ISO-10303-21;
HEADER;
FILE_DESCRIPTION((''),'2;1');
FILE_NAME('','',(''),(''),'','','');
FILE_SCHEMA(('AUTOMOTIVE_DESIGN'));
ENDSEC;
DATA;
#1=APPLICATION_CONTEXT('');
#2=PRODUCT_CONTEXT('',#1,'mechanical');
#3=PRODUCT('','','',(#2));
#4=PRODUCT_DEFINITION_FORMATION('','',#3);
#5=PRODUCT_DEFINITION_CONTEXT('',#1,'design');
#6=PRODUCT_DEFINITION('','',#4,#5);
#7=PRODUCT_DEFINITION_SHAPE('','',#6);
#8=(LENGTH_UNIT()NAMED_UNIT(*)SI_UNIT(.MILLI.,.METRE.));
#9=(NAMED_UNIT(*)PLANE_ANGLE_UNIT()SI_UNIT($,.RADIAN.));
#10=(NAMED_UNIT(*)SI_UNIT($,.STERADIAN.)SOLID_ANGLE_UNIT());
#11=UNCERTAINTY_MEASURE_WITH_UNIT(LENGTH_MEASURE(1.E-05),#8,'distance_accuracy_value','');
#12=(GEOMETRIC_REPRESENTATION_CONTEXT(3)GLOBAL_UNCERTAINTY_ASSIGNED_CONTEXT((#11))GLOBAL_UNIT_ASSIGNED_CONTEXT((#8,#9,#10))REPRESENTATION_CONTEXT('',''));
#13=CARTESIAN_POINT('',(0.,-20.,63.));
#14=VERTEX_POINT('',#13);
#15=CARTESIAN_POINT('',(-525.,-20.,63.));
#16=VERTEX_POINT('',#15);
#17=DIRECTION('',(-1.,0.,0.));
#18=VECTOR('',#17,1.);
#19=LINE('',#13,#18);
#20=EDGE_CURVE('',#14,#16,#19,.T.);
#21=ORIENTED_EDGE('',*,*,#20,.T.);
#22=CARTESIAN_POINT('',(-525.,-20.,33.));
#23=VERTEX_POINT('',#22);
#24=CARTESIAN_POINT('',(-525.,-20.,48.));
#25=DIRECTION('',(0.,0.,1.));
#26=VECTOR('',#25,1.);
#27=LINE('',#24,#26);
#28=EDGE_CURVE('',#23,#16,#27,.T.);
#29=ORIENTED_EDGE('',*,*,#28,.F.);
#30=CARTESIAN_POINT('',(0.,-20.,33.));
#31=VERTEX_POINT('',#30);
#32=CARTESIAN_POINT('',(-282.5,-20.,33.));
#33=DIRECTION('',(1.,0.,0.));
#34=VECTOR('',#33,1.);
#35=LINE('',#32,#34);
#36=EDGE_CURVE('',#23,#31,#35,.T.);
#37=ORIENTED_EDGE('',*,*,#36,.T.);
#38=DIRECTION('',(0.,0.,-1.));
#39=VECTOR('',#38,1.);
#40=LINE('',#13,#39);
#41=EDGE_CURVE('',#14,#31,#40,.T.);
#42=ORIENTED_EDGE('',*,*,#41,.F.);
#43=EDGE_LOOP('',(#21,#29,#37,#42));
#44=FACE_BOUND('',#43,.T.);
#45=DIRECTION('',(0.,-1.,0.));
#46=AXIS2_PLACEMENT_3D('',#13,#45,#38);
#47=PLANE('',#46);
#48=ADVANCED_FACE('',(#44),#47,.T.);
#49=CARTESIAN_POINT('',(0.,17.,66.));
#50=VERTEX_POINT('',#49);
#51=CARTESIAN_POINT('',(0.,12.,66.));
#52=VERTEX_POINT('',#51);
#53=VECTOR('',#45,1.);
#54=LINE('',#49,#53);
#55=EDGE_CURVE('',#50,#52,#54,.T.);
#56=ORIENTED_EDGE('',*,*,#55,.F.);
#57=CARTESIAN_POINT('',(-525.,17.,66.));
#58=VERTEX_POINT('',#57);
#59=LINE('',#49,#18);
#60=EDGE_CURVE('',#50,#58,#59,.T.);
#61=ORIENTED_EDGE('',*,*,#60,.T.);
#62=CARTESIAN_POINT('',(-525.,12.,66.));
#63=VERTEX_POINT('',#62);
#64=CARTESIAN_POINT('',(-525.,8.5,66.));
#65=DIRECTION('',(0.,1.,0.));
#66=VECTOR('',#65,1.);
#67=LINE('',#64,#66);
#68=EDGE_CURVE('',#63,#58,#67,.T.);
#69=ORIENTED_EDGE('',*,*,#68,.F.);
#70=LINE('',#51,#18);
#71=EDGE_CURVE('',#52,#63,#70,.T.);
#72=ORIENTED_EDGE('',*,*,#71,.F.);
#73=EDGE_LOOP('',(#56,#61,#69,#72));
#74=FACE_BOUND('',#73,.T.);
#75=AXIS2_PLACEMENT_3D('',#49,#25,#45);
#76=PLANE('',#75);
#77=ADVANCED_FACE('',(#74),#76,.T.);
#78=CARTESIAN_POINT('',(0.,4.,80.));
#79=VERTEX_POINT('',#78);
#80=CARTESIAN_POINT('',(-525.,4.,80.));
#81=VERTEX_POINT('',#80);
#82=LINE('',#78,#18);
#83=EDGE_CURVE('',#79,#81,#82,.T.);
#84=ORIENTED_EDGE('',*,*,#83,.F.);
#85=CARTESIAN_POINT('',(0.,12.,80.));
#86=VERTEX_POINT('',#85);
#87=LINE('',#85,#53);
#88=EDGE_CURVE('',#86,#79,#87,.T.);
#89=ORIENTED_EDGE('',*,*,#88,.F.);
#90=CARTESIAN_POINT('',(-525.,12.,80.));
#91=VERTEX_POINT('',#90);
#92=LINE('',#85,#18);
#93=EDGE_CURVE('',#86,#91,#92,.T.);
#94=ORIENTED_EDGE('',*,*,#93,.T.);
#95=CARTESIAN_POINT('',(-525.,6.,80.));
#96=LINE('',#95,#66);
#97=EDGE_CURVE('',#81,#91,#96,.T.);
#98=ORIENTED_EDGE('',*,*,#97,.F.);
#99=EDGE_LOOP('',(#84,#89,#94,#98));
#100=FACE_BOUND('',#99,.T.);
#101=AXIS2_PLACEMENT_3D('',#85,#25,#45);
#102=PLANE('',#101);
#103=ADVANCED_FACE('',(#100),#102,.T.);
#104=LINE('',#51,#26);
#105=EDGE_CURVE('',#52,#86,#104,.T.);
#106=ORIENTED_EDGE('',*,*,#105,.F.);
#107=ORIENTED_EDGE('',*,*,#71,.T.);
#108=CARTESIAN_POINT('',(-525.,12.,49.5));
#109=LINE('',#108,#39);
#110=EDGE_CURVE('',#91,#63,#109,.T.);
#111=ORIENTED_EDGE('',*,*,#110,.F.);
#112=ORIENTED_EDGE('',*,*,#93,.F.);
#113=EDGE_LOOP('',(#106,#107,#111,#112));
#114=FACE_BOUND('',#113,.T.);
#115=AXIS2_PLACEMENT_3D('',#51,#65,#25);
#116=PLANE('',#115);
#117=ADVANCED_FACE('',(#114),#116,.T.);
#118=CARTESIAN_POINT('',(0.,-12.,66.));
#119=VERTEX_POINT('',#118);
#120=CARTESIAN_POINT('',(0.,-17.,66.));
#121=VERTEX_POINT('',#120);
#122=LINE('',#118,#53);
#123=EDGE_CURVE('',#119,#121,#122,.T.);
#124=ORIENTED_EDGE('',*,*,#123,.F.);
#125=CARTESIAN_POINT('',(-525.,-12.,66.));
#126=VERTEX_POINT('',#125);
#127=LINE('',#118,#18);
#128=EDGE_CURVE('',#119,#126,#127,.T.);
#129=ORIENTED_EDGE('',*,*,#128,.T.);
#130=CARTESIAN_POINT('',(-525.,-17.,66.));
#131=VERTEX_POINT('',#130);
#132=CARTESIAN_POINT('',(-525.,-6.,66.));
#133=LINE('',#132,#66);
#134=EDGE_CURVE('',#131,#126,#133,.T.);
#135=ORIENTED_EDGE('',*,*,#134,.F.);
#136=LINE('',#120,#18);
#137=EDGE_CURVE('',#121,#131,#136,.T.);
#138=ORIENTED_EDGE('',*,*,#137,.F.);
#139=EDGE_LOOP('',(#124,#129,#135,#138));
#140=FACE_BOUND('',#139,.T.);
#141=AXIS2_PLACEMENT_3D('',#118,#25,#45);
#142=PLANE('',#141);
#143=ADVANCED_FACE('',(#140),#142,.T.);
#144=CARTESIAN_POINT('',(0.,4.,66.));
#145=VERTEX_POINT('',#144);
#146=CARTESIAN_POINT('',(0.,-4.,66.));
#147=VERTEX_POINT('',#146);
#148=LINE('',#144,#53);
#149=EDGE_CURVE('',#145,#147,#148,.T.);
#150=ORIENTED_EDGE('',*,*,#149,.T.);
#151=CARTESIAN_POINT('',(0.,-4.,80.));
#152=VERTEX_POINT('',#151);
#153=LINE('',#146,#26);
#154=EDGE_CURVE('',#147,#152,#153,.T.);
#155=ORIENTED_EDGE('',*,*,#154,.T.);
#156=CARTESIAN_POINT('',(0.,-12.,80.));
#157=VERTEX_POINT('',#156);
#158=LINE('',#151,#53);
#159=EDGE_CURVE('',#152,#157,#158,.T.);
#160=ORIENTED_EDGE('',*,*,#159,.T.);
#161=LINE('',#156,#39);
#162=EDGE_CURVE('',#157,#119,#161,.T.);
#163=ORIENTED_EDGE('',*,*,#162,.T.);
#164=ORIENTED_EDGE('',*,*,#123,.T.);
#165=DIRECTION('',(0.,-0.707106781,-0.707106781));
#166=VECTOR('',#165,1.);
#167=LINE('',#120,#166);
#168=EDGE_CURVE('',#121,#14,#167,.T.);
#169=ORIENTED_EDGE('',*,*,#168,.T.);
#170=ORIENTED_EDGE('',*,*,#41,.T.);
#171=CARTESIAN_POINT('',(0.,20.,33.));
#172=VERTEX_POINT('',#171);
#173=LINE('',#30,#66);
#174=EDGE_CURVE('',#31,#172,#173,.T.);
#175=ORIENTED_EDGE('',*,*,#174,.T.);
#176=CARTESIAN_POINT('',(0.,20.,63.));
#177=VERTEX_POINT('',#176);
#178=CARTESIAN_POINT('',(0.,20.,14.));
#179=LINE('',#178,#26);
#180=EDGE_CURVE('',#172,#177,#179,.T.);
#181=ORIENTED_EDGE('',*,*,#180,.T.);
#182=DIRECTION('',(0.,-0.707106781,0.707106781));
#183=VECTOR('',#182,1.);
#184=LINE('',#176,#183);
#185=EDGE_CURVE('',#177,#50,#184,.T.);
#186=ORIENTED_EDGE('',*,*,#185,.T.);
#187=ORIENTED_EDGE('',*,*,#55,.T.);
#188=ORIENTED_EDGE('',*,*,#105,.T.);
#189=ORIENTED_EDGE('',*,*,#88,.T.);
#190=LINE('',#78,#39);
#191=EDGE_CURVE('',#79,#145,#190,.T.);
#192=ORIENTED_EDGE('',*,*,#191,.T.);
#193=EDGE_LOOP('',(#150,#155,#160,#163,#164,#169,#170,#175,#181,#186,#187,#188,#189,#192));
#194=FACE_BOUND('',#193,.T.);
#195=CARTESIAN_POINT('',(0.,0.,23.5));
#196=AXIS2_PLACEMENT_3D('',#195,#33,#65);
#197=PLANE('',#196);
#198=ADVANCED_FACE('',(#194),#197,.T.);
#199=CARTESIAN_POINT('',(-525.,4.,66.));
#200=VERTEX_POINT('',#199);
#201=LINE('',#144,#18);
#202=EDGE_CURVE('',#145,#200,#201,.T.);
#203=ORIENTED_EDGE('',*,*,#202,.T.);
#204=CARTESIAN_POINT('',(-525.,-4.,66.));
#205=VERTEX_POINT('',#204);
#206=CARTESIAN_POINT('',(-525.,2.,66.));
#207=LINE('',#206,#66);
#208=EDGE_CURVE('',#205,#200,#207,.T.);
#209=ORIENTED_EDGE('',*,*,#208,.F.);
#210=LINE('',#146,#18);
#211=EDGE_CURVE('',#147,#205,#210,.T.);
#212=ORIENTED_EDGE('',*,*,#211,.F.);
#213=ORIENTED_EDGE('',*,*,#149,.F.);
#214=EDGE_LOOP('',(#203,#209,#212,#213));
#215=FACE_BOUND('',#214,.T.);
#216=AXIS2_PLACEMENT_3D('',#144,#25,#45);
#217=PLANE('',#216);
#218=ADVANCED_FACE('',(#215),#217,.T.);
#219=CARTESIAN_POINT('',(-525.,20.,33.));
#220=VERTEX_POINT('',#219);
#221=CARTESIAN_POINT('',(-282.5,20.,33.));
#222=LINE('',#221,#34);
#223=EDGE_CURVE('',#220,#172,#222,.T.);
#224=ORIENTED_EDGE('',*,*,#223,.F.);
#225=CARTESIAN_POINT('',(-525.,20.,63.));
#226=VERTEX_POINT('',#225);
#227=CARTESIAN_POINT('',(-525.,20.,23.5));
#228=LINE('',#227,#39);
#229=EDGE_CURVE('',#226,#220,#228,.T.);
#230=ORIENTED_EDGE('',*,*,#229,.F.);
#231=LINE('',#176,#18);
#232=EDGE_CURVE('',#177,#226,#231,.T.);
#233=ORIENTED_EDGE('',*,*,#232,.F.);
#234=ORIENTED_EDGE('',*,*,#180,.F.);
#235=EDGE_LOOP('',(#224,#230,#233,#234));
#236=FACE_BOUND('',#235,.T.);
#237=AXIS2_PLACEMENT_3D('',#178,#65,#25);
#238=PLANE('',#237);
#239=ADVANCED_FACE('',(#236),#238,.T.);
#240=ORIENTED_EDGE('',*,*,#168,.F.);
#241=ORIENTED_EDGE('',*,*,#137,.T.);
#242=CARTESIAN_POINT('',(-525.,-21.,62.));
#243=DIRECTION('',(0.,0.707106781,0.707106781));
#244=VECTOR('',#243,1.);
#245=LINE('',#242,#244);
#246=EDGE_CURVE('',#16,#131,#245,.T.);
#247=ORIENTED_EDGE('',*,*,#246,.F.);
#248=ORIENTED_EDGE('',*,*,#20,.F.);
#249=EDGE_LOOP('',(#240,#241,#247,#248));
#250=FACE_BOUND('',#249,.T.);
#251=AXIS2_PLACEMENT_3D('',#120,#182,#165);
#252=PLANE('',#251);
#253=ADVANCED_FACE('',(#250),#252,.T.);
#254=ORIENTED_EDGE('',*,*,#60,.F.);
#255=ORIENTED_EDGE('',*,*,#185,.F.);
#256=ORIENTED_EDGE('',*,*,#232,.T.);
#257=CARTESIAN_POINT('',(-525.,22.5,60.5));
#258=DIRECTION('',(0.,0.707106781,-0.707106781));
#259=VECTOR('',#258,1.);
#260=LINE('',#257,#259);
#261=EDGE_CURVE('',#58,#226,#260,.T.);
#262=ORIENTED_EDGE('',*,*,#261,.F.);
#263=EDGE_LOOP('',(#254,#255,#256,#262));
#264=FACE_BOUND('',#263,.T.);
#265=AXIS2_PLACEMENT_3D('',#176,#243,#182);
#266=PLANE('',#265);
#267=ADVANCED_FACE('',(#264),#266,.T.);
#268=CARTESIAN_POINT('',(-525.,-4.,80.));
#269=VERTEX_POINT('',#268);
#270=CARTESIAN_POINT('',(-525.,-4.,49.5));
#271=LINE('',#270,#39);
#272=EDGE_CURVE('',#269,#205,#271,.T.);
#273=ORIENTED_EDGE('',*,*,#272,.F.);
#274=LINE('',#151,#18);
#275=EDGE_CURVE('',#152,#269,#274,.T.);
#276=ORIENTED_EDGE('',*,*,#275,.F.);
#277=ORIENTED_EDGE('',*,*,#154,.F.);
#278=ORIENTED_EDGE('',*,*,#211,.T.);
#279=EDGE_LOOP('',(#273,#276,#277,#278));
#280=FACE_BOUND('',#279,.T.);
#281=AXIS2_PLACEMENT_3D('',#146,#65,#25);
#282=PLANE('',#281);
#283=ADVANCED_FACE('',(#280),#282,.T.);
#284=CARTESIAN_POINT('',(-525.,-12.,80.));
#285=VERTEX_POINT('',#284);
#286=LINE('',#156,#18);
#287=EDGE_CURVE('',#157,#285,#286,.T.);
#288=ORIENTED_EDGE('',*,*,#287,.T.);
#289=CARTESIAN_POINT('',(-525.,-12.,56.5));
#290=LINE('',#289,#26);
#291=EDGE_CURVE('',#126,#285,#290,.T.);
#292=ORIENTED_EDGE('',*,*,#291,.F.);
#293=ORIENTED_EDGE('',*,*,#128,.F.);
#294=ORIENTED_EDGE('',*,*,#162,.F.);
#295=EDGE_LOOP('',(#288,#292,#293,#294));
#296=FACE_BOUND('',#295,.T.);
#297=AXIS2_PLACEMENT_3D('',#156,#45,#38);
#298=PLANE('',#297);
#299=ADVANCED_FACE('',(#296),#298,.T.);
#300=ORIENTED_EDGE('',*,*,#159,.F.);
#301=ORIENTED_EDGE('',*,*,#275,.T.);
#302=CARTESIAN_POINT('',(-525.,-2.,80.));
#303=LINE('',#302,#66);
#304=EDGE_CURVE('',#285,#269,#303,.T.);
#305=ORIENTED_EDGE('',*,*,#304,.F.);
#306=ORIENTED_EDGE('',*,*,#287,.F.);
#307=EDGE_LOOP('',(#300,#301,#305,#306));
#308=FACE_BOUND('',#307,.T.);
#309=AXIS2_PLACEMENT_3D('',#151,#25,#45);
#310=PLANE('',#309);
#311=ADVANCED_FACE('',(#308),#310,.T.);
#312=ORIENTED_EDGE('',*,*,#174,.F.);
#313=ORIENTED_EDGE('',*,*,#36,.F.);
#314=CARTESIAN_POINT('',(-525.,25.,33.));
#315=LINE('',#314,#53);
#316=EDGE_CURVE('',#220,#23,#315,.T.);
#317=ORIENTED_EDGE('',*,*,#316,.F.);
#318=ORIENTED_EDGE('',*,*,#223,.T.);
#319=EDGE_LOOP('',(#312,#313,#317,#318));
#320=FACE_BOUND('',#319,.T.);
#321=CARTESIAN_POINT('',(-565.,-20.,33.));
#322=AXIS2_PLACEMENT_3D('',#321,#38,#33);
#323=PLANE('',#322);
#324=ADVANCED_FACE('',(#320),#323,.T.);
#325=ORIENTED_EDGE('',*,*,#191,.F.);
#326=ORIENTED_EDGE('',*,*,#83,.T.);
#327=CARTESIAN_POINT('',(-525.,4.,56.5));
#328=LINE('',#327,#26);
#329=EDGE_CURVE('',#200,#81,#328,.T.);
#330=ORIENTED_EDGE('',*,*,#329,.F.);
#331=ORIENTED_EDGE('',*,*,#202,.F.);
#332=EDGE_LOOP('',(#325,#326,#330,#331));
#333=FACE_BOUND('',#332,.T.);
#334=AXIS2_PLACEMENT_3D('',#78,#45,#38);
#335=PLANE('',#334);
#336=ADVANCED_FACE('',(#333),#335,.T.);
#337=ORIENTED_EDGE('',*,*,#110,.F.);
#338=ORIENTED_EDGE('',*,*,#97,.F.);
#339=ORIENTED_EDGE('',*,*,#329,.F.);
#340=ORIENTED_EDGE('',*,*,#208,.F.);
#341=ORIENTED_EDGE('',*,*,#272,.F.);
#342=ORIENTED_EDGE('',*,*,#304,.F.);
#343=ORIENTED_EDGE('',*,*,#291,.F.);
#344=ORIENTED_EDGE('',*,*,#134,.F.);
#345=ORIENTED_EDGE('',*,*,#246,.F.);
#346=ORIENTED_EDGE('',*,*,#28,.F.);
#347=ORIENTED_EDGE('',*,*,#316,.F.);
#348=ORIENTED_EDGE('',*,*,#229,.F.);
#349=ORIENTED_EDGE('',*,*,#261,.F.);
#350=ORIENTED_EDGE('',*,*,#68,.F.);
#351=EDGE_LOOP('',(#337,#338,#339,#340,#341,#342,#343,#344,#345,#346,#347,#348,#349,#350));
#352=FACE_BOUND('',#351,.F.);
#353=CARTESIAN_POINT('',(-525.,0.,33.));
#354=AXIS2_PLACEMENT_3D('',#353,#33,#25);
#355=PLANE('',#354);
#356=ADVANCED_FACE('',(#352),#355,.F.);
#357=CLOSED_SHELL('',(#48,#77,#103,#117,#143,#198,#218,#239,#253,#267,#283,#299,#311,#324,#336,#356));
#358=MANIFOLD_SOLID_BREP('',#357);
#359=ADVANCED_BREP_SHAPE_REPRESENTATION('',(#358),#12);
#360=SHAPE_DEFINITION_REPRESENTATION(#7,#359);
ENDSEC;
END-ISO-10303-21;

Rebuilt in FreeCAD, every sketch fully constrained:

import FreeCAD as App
import Part
import Sketcher
from FreeCAD import Vector
Q = App.Units.Quantity

doc = App.newDocument("Part")
body = doc.addObject("PartDesign::Body", "Body")

# Sketch on YZ plane
sketch1 = body.newObject("Sketcher::SketchObject", "Sketch")
sketch1.AttachmentSupport = (doc.getObject("YZ_Plane"), [""])
sketch1.MapMode = "FlatFace"
sketch1.addGeometry([
    Part.LineSegment(Vector(-20, 14, 0), Vector(20, 14, 0)),  # 0
    Part.LineSegment(Vector(20, 14, 0), Vector(20, 63, 0)),  # 1
    Part.LineSegment(Vector(20, 63, 0), Vector(17, 66, 0)),  # 2
    Part.LineSegment(Vector(17, 66, 0), Vector(12, 66, 0)),  # 3
    Part.LineSegment(Vector(12, 66, 0), Vector(12, 80, 0)),  # 4
    Part.LineSegment(Vector(12, 80, 0), Vector(4, 80, 0)),  # 5
    Part.LineSegment(Vector(4, 80, 0), Vector(4, 66, 0)),  # 6
    Part.LineSegment(Vector(4, 66, 0), Vector(-4, 66, 0)),  # 7
    Part.LineSegment(Vector(-4, 66, 0), Vector(-4, 80, 0)),  # 8
    Part.LineSegment(Vector(-4, 80, 0), Vector(-12, 80, 0)),  # 9
    Part.LineSegment(Vector(-12, 80, 0), Vector(-12, 66, 0)),  # 10
    Part.LineSegment(Vector(-12, 66, 0), Vector(-17, 66, 0)),  # 11
    Part.LineSegment(Vector(-17, 66, 0), Vector(-20, 63, 0)),  # 12
    Part.LineSegment(Vector(-20, 63, 0), Vector(-20, 14, 0)),  # 13
], False)
sketch1.addConstraint([
    Sketcher.Constraint("Coincident", 0, 2, 1, 1),
    Sketcher.Constraint("Coincident", 1, 2, 2, 1),
    Sketcher.Constraint("Coincident", 2, 2, 3, 1),
    Sketcher.Constraint("Coincident", 3, 2, 4, 1),
    Sketcher.Constraint("Coincident", 4, 2, 5, 1),
    Sketcher.Constraint("Coincident", 5, 2, 6, 1),
    Sketcher.Constraint("Coincident", 6, 2, 7, 1),
    Sketcher.Constraint("Coincident", 7, 2, 8, 1),
    Sketcher.Constraint("Coincident", 8, 2, 9, 1),
    Sketcher.Constraint("Coincident", 9, 2, 10, 1),
    Sketcher.Constraint("Coincident", 10, 2, 11, 1),
    Sketcher.Constraint("Coincident", 11, 2, 12, 1),
    Sketcher.Constraint("Coincident", 12, 2, 13, 1),
    Sketcher.Constraint("Coincident", 13, 2, 0, 1),
    Sketcher.Constraint("Horizontal", 0),
    Sketcher.Constraint("Vertical", 1),
    Sketcher.Constraint("Horizontal", 3),
    Sketcher.Constraint("Vertical", 4),
    Sketcher.Constraint("Horizontal", 5),
    Sketcher.Constraint("Vertical", 6),
    Sketcher.Constraint("Horizontal", 7),
    Sketcher.Constraint("Vertical", 8),
    Sketcher.Constraint("Horizontal", 9),
    Sketcher.Constraint("Vertical", 10),
    Sketcher.Constraint("Horizontal", 11),
    Sketcher.Constraint("Vertical", 13),
    Sketcher.Constraint("Symmetric", 5, 2, 8, 2, -2),
    Sketcher.Constraint("Symmetric", 3, 2, 10, 2, -2),
    Sketcher.Constraint("Symmetric", 1, 2, 12, 2, -2),
    Sketcher.Constraint("Perpendicular", 2, 12),
    Sketcher.Constraint("Horizontal", 3, 2, 6, 2),
    Sketcher.Constraint("Equal", 5, 7),
    Sketcher.Constraint("Equal", 3, 11),
    Sketcher.Constraint("DistanceX", 0, 1, 0, 2, Q("40 mm")),
    Sketcher.Constraint("DistanceX", 3, 2, 3, 1, Q("5 mm")),
    Sketcher.Constraint("DistanceX", 5, 2, 5, 1, Q("8 mm")),
    Sketcher.Constraint("DistanceY", 1, 1, 1, 2, Q("49 mm")),
    Sketcher.Constraint("DistanceY", 4, 1, 4, 2, Q("14 mm")),
    Sketcher.Constraint("DistanceY", -1, 1, 0, 2, Q("14 mm")),
])
pad1 = body.newObject("PartDesign::Pad", "Pad")
pad1.Profile = sketch1
pad1.Length = 565
pad1.Reversed = True

# Sketch on XZ plane
sketch2 = body.newObject("Sketcher::SketchObject", "Sketch001")
sketch2.AttachmentSupport = (doc.getObject("XZ_Plane"), [""])
sketch2.MapMode = "FlatFace"
sketch2.addGeometry([
    Part.LineSegment(Vector(-605, 133, 0), Vector(-605, 33, 0)),
    Part.LineSegment(Vector(-605, 33, 0), Vector(-525, 33, 0)),
    Part.LineSegment(Vector(-525, 33, 0), Vector(-525, 133, 0)),
    Part.LineSegment(Vector(-525, 133, 0), Vector(-605, 133, 0)),
], False)
sketch2.addConstraint([
    Sketcher.Constraint("Coincident", 0, 2, 1, 1),
    Sketcher.Constraint("Coincident", 1, 2, 2, 1),
    Sketcher.Constraint("Coincident", 2, 2, 3, 1),
    Sketcher.Constraint("Coincident", 3, 2, 0, 1),
    Sketcher.Constraint("Vertical", 0),
    Sketcher.Constraint("Horizontal", 1),
    Sketcher.Constraint("Vertical", 2),
    Sketcher.Constraint("Horizontal", 3),
    Sketcher.Constraint("DistanceX", 1, 1, 1, 2, Q("80 mm")),
    Sketcher.Constraint("DistanceY", 0, 2, 0, 1, Q("100 mm")),
    Sketcher.Constraint("DistanceX", 0, 2, -1, 1, Q("605 mm")),
    Sketcher.Constraint("DistanceY", -1, 1, 0, 2, Q("33 mm")),
])
pocket1 = body.newObject("PartDesign::Pocket", "Pocket")
pocket1.Profile = sketch2
pocket1.Length = 50
pocket1.Midplane = True

# Sketch on XZ plane
sketch3 = body.newObject("Sketcher::SketchObject", "Sketch002")
sketch3.AttachmentSupport = (doc.getObject("XZ_Plane"), [""])
sketch3.MapMode = "FlatFace"
sketch3.AttachmentOffset = App.Placement(Vector(0, 0, 20), App.Rotation())
sketch3.addGeometry([
    Part.LineSegment(Vector(-565, 33, 0), Vector(-565, 14, 0)),
    Part.LineSegment(Vector(-565, 14, 0), Vector(0, 14, 0)),
    Part.LineSegment(Vector(0, 14, 0), Vector(0, 33, 0)),
    Part.LineSegment(Vector(0, 33, 0), Vector(-565, 33, 0)),
], False)
sketch3.addConstraint([
    Sketcher.Constraint("Coincident", 0, 2, 1, 1),
    Sketcher.Constraint("Coincident", 1, 2, 2, 1),
    Sketcher.Constraint("Coincident", 2, 2, 3, 1),
    Sketcher.Constraint("Coincident", 3, 2, 0, 1),
    Sketcher.Constraint("Vertical", 0),
    Sketcher.Constraint("Horizontal", 1),
    Sketcher.Constraint("Vertical", 2),
    Sketcher.Constraint("Horizontal", 3),
    Sketcher.Constraint("PointOnObject", 1, 2, -2),
    Sketcher.Constraint("DistanceX", 1, 1, 1, 2, Q("565 mm")),
    Sketcher.Constraint("DistanceY", 0, 2, 0, 1, Q("19 mm")),
    Sketcher.Constraint("DistanceY", -1, 1, 0, 2, Q("14 mm")),
])
pocket2 = body.newObject("PartDesign::Pocket", "Pocket001")
pocket2.Profile = sketch3
pocket2.Type = "ThroughAll"

doc.recompute()
